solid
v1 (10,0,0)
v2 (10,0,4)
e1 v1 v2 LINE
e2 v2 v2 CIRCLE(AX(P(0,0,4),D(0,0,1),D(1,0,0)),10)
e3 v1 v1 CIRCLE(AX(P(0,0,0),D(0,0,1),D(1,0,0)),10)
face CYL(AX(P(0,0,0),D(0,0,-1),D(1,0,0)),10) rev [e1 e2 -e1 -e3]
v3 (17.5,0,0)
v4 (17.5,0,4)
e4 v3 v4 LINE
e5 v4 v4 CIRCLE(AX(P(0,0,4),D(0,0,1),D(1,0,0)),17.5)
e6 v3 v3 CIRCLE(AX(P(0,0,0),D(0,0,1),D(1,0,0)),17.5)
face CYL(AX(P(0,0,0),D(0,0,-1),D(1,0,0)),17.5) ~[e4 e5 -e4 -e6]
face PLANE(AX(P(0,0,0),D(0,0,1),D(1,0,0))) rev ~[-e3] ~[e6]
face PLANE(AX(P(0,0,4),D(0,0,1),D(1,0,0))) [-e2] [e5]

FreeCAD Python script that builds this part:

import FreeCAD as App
import Part
import Sketcher

V = App.Vector

doc = App.newDocument("Part")
params = doc.addObject("Spreadsheet::Sheet", "Params")
for row, (alias, value) in enumerate([
    ("sketch1_diameter", "35 mm"),
    ("sketch1_diameter2", "20 mm"),
    ("pad1_length", "4 mm"),
], start=1):
    params.set(f"A{row}", alias)
    params.set(f"B{row}", "=" + value)
    params.setAlias(f"B{row}", alias)

body = doc.addObject("PartDesign::Body", "Body")

# Sketch on XY plane
sketch1 = body.newObject("Sketcher::SketchObject", "Sketch")
sketch1.AttachmentSupport = (doc.getObject("XY_Plane"), [""])
sketch1.MapMode = "FlatFace"
sketch1.addGeometry([
    Part.Circle(V(0, 0, 0), V(0, 0, 1), 18),
    Part.Circle(V(0, 0, 0), V(0, 0, 1), 10),
], False)
sketch1.addConstraint([
    Sketcher.Constraint("Coincident", 0, 3, -1, 1),
    Sketcher.Constraint("Coincident", 1, 3, -1, 1),
    Sketcher.Constraint("Diameter", 0, 35.0),
    Sketcher.Constraint("Diameter", 1, 20.0),
])
sketch1.setExpression("Constraints[2]", "Params.sketch1_diameter")
sketch1.setExpression("Constraints[3]", "Params.sketch1_diameter2")
pad1 = body.newObject("PartDesign::Pad", "Pad")
pad1.Profile = sketch1
pad1.setExpression("Length", "Params.pad1_length")

doc.recompute()
